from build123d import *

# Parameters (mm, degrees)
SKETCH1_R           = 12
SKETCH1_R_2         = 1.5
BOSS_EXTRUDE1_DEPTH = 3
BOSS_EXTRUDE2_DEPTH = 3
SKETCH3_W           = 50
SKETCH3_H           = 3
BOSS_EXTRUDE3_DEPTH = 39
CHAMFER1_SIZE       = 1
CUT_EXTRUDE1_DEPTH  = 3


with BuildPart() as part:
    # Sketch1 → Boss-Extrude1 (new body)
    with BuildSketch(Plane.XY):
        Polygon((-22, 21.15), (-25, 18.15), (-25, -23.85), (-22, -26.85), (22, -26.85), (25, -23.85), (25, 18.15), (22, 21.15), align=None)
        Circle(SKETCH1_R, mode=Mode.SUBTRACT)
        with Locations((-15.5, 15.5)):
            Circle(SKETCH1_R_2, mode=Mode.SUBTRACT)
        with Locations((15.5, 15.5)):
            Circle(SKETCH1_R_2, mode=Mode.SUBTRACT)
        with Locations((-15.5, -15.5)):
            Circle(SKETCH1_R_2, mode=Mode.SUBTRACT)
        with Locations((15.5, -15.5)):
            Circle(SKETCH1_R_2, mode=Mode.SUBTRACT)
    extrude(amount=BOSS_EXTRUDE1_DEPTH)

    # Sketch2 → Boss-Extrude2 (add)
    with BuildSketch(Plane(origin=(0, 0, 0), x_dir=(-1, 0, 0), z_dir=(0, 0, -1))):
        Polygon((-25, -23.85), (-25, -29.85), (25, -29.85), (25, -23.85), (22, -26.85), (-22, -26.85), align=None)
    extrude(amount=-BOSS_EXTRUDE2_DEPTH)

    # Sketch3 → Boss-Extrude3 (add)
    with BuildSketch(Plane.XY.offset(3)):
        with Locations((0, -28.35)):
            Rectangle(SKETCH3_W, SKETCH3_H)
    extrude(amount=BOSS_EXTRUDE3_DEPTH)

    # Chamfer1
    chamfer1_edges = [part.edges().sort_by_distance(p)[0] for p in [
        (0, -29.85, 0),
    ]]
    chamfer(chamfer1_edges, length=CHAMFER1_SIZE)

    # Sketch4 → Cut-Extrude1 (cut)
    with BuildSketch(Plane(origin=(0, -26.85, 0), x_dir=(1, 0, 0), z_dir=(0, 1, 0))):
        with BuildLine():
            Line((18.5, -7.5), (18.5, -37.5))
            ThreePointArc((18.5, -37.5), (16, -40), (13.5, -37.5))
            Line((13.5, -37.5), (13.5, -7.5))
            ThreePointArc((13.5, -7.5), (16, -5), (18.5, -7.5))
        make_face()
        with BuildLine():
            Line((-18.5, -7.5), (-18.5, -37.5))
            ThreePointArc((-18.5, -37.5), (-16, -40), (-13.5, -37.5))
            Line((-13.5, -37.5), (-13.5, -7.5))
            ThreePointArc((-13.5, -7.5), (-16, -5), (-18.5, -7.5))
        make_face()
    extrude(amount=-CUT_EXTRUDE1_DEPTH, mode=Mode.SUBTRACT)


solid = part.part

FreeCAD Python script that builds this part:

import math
import FreeCAD as App
import Part
import Sketcher
Q = App.Units.Quantity


def edges_at(feature, points):
    """Names of the edges that pass closest to the given points."""
    edges = feature.Shape.Edges
    near = lambda p: min(range(len(edges)), key=lambda i: edges[i].distToShape(Part.Vertex(*p))[0])
    return sorted({f"Edge{near(p) + 1}" for p in points})

doc = App.newDocument("Part")
body = doc.addObject("PartDesign::Body", "Body")

# Sketch on XY plane
sketch1 = body.newObject("Sketcher::SketchObject", "Sketch")
sketch1.AttachmentSupport = (doc.getObject("XY_Plane"), [""])
sketch1.MapMode = "FlatFace"
sketch1.addGeometry([
    Part.LineSegment(App.Vector(-22, 21.1, 0), App.Vector(-25, 18.1, 0)),  # 0
    Part.LineSegment(App.Vector(-25, 18.1, 0), App.Vector(-25, -23.9, 0)),  # 1
    Part.LineSegment(App.Vector(-25, -23.9, 0), App.Vector(-22, -26.9, 0)),  # 2
    Part.LineSegment(App.Vector(-22, -26.9, 0), App.Vector(22, -26.9, 0)),  # 3
    Part.LineSegment(App.Vector(22, -26.9, 0), App.Vector(25, -23.9, 0)),  # 4
    Part.LineSegment(App.Vector(25, -23.9, 0), App.Vector(25, 18.1, 0)),  # 5
    Part.LineSegment(App.Vector(25, 18.1, 0), App.Vector(22, 21.1, 0)),  # 6
    Part.LineSegment(App.Vector(22, 21.1, 0), App.Vector(-22, 21.1, 0)),  # 7
    Part.Circle(App.Vector(-15.5, -15.5, 0), App.Vector(0, 0, 1), 1.5),  # 8
    Part.Circle(App.Vector(15.5, -15.5, 0), App.Vector(0, 0, 1), 1.5),  # 9
    Part.Circle(App.Vector(-15.5, 15.5, 0), App.Vector(0, 0, 1), 1.5),  # 10
    Part.Circle(App.Vector(0, 0, 0), App.Vector(0, 0, 1), 12),  # 11
    Part.Circle(App.Vector(15.5, 15.5, 0), App.Vector(0, 0, 1), 1.5),  # 12
], False)
sketch1.addConstraint([
    Sketcher.Constraint("Coincident", 0, 2, 1, 1),
    Sketcher.Constraint("Coincident", 1, 2, 2, 1),
    Sketcher.Constraint("Coincident", 2, 2, 3, 1),
    Sketcher.Constraint("Coincident", 3, 2, 4, 1),
    Sketcher.Constraint("Coincident", 4, 2, 5, 1),
    Sketcher.Constraint("Coincident", 5, 2, 6, 1),
    Sketcher.Constraint("Coincident", 6, 2, 7, 1),
    Sketcher.Constraint("Coincident", 7, 2, 0, 1),
    Sketcher.Constraint("Vertical", 1),
    Sketcher.Constraint("Horizontal", 3),
    Sketcher.Constraint("Vertical", 5),
    Sketcher.Constraint("Horizontal", 7),
    Sketcher.Constraint("Coincident", 11, 3, -1, 1),
    Sketcher.Constraint("Equal", 8, 9),
    Sketcher.Constraint("Equal", 9, 10),
    Sketcher.Constraint("Equal", 10, 12),
    Sketcher.Constraint("Symmetric", 9, 3, 10, 3, -1, 1),
    Sketcher.Constraint("Symmetric", 8, 3, 12, 3, -1, 1),
    Sketcher.Constraint("Symmetric", 8, 3, 9, 3, -2),
    Sketcher.Constraint("Symmetric", 1, 2, 4, 2, -2),
    Sketcher.Constraint("Perpendicular", 0, 2),
    Sketcher.Constraint("Perpendicular", 2, 4),
    Sketcher.Constraint("Perpendicular", 4, 6),
    Sketcher.Constraint("Horizontal", 0, 2, 5, 2),
    Sketcher.Constraint("Vertical", 3, 2, 6, 2),
    Sketcher.Constraint("Vertical", 2, 2, 7, 2),
    Sketcher.Constraint("Diameter", 8, Q("3 mm")),
    Sketcher.Constraint("Diameter", 11, Q("24 mm")),
    Sketcher.Constraint("DistanceX", 3, 1, 3, 2, Q("44 mm")),
    Sketcher.Constraint("DistanceY", 1, 2, 1, 1, Q("42 mm")),
    Sketcher.Constraint("DistanceX", 0, 2, -1, 1, Q("25 mm")),
    Sketcher.Constraint("DistanceX", 8, 3, 9, 3, Q("31 mm")),
    Sketcher.Constraint("DistanceY", 8, 3, 10, 3, Q("31 mm")),
    Sketcher.Constraint("DistanceY", -1, 1, 0, 2, Q("18.15 mm")),
])
pad1 = body.newObject("PartDesign::Pad", "Pad")
pad1.Profile = sketch1
pad1.Length = 3

# Sketch on XY plane
sketch2 = body.newObject("Sketcher::SketchObject", "Sketch001")
sketch2.AttachmentSupport = (doc.getObject("XY_Plane"), [""])
sketch2.MapMode = "FlatFace"
sketch2.addGeometry([
    Part.LineSegment(App.Vector(25, -23.9, 0), App.Vector(25, -29.9, 0)),  # 0
    Part.LineSegment(App.Vector(25, -29.9, 0), App.Vector(-25, -29.9, 0)),  # 1
    Part.LineSegment(App.Vector(-25, -29.9, 0), App.Vector(-25, -23.9, 0)),  # 2
    Part.LineSegment(App.Vector(-25, -23.9, 0), App.Vector(-22, -26.9, 0)),  # 3
    Part.LineSegment(App.Vector(-22, -26.9, 0), App.Vector(22, -26.9, 0)),  # 4
    Part.LineSegment(App.Vector(22, -26.9, 0), App.Vector(25, -23.9, 0)),  # 5
], False)
sketch2.addConstraint([
    Sketcher.Constraint("Coincident", 0, 2, 1, 1),
    Sketcher.Constraint("Coincident", 1, 2, 2, 1),
    Sketcher.Constraint("Coincident", 2, 2, 3, 1),
    Sketcher.Constraint("Coincident", 3, 2, 4, 1),
    Sketcher.Constraint("Coincident", 4, 2, 5, 1),
    Sketcher.Constraint("Coincident", 5, 2, 0, 1),
    Sketcher.Constraint("Vertical", 0),
    Sketcher.Constraint("Horizontal", 1),
    Sketcher.Constraint("Vertical", 2),
    Sketcher.Constraint("Horizontal", 4),
    Sketcher.Constraint("Symmetric", 2, 2, 5, 2, -2),
    Sketcher.Constraint("Perpendicular", 3, 5),
    Sketcher.Constraint("Equal", 3, 5),
    Sketcher.Constraint("DistanceX", 1, 2, 1, 1, Q("50 mm")),
    Sketcher.Constraint("DistanceX", 4, 1, 4, 2, Q("44 mm")),
    Sketcher.Constraint("DistanceY", 0, 2, 0, 1, Q("6 mm")),
    Sketcher.Constraint("DistanceY", 0, 2, -1, 1, Q("29.85 mm")),
])
pad2 = body.newObject("PartDesign::Pad", "Pad001")
pad2.Profile = sketch2
pad2.Length = 3

# Sketch on XY plane
sketch3 = body.newObject("Sketcher::SketchObject", "Sketch002")
sketch3.AttachmentSupport = (doc.getObject("XY_Plane"), [""])
sketch3.MapMode = "FlatFace"
sketch3.AttachmentOffset = App.Placement(App.Vector(0, 0, 3), App.Rotation())
sketch3.addGeometry([
    Part.LineSegment(App.Vector(-25, -26.9, 0), App.Vector(-25, -29.9, 0)),
    Part.LineSegment(App.Vector(-25, -29.9, 0), App.Vector(25, -29.9, 0)),
    Part.LineSegment(App.Vector(25, -29.9, 0), App.Vector(25, -26.9, 0)),
    Part.LineSegment(App.Vector(25, -26.9, 0), App.Vector(-25, -26.9, 0)),
], False)
sketch3.addConstraint([
    Sketcher.Constraint("Coincident", 0, 2, 1, 1),
    Sketcher.Constraint("Coincident", 1, 2, 2, 1),
    Sketcher.Constraint("Coincident", 2, 2, 3, 1),
    Sketcher.Constraint("Coincident", 3, 2, 0, 1),
    Sketcher.Constraint("Vertical", 0),
    Sketcher.Constraint("Horizontal", 1),
    Sketcher.Constraint("Vertical", 2),
    Sketcher.Constraint("Horizontal", 3),
    Sketcher.Constraint("DistanceX", 1, 1, 1, 2, Q("50 mm")),
    Sketcher.Constraint("DistanceY", 0, 2, 0, 1, Q("3 mm")),
    Sketcher.Constraint("DistanceX", 0, 2, -1, 1, Q("25 mm")),
    Sketcher.Constraint("DistanceY", 0, 2, -1, 1, Q("29.85 mm")),
])
pad3 = body.newObject("PartDesign::Pad", "Pad002")
pad3.Profile = sketch3
pad3.Length = 39
doc.recompute()

chamfer = body.newObject("PartDesign::Chamfer", "Chamfer")
chamfer.Base = (pad3, edges_at(pad3, [(0, -29.85, 0)]))
chamfer.Size = 1

# Sketch on XZ plane
sketch4 = body.newObject("Sketcher::SketchObject", "Sketch003")
sketch4.AttachmentSupport = (doc.getObject("XZ_Plane"), [""])
sketch4.MapMode = "FlatFace"
sketch4.AttachmentOffset = App.Placement(App.Vector(0, 0, 26.85), App.Rotation())
sketch4.addGeometry([
    Part.LineSegment(App.Vector(18.5, 37.5, 0), App.Vector(18.5, 7.5, 0)),  # 0
    Part.ArcOfCircle(Part.Circle(App.Vector(16, 7.5, 0), App.Vector(0, 0, 1), 2.5), math.radians(180), math.radians(360)),  # 1
    Part.LineSegment(App.Vector(13.5, 7.5, 0), App.Vector(13.5, 37.5, 0)),  # 2
    Part.ArcOfCircle(Part.Circle(App.Vector(16, 37.5, 0), App.Vector(0, 0, 1), 2.5), math.radians(0), math.radians(180)),  # 3
    Part.LineSegment(App.Vector(-18.5, 7.5, 0), App.Vector(-18.5, 37.5, 0)),  # 4
    Part.ArcOfCircle(Part.Circle(App.Vector(-16, 37.5, 0), App.Vector(0, 0, 1), 2.5), math.radians(0), math.radians(180)),  # 5
    Part.LineSegment(App.Vector(-13.5, 37.5, 0), App.Vector(-13.5, 7.5, 0)),  # 6
    Part.ArcOfCircle(Part.Circle(App.Vector(-16, 7.5, 0), App.Vector(0, 0, 1), 2.5), math.radians(180), math.radians(360)),  # 7
], False)
sketch4.addConstraint([
    Sketcher.Constraint("Tangent", 0, 2, 1, 2),
    Sketcher.Constraint("Tangent", 1, 1, 2, 1),
    Sketcher.Constraint("Tangent", 2, 2, 3, 2),
    Sketcher.Constraint("Tangent", 3, 1, 0, 1),
    Sketcher.Constraint("Tangent", 4, 2, 5, 2),
    Sketcher.Constraint("Tangent", 5, 1, 6, 1),
    Sketcher.Constraint("Tangent", 6, 2, 7, 2),
    Sketcher.Constraint("Tangent", 7, 1, 4, 1),
    Sketcher.Constraint("Vertical", 0),
    Sketcher.Constraint("Vertical", 2),
    Sketcher.Constraint("Vertical", 4),
    Sketcher.Constraint("Vertical", 6),
    Sketcher.Constraint("Equal", 3, 5),
    Sketcher.Constraint("Symmetric", 3, 3, 5, 3, -2),
    Sketcher.Constraint("Horizontal", 1, 3, 7, 3),
    Sketcher.Constraint("Radius", 1, Q("2.5 mm")),
    Sketcher.Constraint("DistanceY", 0, 2, 0, 1, Q("30 mm")),
    Sketcher.Constraint("DistanceX", -1, 1, 1, 3, Q("16 mm")),
    Sketcher.Constraint("DistanceY", -1, 1, 1, 3, Q("7.5 mm")),
])
pocket1 = body.newObject("PartDesign::Pocket", "Pocket")
pocket1.Profile = sketch4
pocket1.Length = 3
pocket1.Reversed = True

doc.recompute()
